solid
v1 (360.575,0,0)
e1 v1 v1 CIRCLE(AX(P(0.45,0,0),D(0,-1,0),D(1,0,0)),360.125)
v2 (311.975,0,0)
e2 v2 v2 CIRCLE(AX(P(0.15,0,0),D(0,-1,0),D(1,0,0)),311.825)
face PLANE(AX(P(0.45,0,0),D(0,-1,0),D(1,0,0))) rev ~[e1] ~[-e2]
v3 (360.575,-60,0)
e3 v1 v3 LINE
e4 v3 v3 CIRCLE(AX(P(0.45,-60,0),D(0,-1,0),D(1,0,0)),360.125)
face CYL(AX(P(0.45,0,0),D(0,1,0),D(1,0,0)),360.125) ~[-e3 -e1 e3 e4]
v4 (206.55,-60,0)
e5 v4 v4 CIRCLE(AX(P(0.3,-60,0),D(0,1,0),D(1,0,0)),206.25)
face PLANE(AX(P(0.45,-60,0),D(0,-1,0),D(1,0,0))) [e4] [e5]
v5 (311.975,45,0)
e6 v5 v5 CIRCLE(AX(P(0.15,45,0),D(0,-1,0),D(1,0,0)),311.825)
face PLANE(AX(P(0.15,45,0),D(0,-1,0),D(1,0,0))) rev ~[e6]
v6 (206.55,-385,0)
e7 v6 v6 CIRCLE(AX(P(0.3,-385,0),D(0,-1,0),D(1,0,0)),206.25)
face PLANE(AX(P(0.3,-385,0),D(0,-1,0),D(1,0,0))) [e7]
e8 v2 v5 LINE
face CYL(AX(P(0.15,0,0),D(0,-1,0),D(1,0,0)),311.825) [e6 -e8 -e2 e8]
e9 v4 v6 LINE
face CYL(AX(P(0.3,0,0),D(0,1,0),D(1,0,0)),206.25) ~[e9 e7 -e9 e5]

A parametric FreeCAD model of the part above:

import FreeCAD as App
import Part
import Sketcher

V = App.Vector
Q = App.Units.Quantity

doc = App.newDocument("Part")
params = doc.addObject("Spreadsheet::Sheet", "Params")
for row, (alias, value) in enumerate([
    ("sketch1_diameter", "623.65 mm"),
    ("pad1_length", "45 mm"),
    ("sketch2_diameter", "412.5 mm"),
    ("pad2_length", "385 mm"),
    ("sketch3_diameter", "720.25 mm"),
    ("pad3_length", "60 mm"),
], start=1):
    params.set(f"A{row}", alias)
    params.set(f"B{row}", "=" + value)
    params.setAlias(f"B{row}", alias)

body = doc.addObject("PartDesign::Body", "Body")

sketch1 = body.newObject("Sketcher::SketchObject", "Sketch")
sketch1.AttachmentSupport = (doc.getObject("XZ_Plane"), [""])
sketch1.MapMode = "FlatFace"
sketch1.addGeometry(Part.Circle(V(0, 0, 0), V(0, 0, 1), 312), False)
sketch1.addConstraint([
    Sketcher.Constraint("PointOnObject", 0, 3, -1),
    Sketcher.Constraint("Diameter", 0, Q("623.65 mm")),
    Sketcher.Constraint("DistanceX", -1, 1, 0, 3, Q("0.15 mm")),
])
sketch1.setExpression("Constraints[1]", "Params.sketch1_diameter")
pad1 = body.newObject("PartDesign::Pad", "Pad")
pad1.Profile = sketch1
pad1.setExpression("Length", "Params.pad1_length")
pad1.Reversed = True

sketch2 = body.newObject("Sketcher::SketchObject", "Sketch001")
sketch2.AttachmentSupport = (doc.getObject("XZ_Plane"), [""])
sketch2.MapMode = "FlatFace"
sketch2.addGeometry(Part.Circle(V(0, 0, 0), V(0, 0, 1), 206), False)
sketch2.addConstraint([
    Sketcher.Constraint("PointOnObject", 0, 3, -1),
    Sketcher.Constraint("Diameter", 0, Q("412.5 mm")),
    Sketcher.Constraint("DistanceX", -1, 1, 0, 3, Q("0.3 mm")),
])
sketch2.setExpression("Constraints[1]", "Params.sketch2_diameter")
pad2 = body.newObject("PartDesign::Pad", "Pad001")
pad2.Profile = sketch2
pad2.setExpression("Length", "Params.pad2_length")

sketch3 = body.newObject("Sketcher::SketchObject", "Sketch002")
sketch3.AttachmentSupport = (doc.getObject("XZ_Plane"), [""])
sketch3.MapMode = "FlatFace"
sketch3.addGeometry(Part.Circle(V(0, 0, 0), V(0, 0, 1), 360), False)
sketch3.addConstraint([
    Sketcher.Constraint("PointOnObject", 0, 3, -1),
    Sketcher.Constraint("Diameter", 0, Q("720.25 mm")),
    Sketcher.Constraint("DistanceX", -1, 1, 0, 3, Q("0.45 mm")),
])
sketch3.setExpression("Constraints[1]", "Params.sketch3_diameter")
pad3 = body.newObject("PartDesign::Pad", "Pad002")
pad3.Profile = sketch3
pad3.setExpression("Length", "Params.pad3_length")

doc.recompute()
